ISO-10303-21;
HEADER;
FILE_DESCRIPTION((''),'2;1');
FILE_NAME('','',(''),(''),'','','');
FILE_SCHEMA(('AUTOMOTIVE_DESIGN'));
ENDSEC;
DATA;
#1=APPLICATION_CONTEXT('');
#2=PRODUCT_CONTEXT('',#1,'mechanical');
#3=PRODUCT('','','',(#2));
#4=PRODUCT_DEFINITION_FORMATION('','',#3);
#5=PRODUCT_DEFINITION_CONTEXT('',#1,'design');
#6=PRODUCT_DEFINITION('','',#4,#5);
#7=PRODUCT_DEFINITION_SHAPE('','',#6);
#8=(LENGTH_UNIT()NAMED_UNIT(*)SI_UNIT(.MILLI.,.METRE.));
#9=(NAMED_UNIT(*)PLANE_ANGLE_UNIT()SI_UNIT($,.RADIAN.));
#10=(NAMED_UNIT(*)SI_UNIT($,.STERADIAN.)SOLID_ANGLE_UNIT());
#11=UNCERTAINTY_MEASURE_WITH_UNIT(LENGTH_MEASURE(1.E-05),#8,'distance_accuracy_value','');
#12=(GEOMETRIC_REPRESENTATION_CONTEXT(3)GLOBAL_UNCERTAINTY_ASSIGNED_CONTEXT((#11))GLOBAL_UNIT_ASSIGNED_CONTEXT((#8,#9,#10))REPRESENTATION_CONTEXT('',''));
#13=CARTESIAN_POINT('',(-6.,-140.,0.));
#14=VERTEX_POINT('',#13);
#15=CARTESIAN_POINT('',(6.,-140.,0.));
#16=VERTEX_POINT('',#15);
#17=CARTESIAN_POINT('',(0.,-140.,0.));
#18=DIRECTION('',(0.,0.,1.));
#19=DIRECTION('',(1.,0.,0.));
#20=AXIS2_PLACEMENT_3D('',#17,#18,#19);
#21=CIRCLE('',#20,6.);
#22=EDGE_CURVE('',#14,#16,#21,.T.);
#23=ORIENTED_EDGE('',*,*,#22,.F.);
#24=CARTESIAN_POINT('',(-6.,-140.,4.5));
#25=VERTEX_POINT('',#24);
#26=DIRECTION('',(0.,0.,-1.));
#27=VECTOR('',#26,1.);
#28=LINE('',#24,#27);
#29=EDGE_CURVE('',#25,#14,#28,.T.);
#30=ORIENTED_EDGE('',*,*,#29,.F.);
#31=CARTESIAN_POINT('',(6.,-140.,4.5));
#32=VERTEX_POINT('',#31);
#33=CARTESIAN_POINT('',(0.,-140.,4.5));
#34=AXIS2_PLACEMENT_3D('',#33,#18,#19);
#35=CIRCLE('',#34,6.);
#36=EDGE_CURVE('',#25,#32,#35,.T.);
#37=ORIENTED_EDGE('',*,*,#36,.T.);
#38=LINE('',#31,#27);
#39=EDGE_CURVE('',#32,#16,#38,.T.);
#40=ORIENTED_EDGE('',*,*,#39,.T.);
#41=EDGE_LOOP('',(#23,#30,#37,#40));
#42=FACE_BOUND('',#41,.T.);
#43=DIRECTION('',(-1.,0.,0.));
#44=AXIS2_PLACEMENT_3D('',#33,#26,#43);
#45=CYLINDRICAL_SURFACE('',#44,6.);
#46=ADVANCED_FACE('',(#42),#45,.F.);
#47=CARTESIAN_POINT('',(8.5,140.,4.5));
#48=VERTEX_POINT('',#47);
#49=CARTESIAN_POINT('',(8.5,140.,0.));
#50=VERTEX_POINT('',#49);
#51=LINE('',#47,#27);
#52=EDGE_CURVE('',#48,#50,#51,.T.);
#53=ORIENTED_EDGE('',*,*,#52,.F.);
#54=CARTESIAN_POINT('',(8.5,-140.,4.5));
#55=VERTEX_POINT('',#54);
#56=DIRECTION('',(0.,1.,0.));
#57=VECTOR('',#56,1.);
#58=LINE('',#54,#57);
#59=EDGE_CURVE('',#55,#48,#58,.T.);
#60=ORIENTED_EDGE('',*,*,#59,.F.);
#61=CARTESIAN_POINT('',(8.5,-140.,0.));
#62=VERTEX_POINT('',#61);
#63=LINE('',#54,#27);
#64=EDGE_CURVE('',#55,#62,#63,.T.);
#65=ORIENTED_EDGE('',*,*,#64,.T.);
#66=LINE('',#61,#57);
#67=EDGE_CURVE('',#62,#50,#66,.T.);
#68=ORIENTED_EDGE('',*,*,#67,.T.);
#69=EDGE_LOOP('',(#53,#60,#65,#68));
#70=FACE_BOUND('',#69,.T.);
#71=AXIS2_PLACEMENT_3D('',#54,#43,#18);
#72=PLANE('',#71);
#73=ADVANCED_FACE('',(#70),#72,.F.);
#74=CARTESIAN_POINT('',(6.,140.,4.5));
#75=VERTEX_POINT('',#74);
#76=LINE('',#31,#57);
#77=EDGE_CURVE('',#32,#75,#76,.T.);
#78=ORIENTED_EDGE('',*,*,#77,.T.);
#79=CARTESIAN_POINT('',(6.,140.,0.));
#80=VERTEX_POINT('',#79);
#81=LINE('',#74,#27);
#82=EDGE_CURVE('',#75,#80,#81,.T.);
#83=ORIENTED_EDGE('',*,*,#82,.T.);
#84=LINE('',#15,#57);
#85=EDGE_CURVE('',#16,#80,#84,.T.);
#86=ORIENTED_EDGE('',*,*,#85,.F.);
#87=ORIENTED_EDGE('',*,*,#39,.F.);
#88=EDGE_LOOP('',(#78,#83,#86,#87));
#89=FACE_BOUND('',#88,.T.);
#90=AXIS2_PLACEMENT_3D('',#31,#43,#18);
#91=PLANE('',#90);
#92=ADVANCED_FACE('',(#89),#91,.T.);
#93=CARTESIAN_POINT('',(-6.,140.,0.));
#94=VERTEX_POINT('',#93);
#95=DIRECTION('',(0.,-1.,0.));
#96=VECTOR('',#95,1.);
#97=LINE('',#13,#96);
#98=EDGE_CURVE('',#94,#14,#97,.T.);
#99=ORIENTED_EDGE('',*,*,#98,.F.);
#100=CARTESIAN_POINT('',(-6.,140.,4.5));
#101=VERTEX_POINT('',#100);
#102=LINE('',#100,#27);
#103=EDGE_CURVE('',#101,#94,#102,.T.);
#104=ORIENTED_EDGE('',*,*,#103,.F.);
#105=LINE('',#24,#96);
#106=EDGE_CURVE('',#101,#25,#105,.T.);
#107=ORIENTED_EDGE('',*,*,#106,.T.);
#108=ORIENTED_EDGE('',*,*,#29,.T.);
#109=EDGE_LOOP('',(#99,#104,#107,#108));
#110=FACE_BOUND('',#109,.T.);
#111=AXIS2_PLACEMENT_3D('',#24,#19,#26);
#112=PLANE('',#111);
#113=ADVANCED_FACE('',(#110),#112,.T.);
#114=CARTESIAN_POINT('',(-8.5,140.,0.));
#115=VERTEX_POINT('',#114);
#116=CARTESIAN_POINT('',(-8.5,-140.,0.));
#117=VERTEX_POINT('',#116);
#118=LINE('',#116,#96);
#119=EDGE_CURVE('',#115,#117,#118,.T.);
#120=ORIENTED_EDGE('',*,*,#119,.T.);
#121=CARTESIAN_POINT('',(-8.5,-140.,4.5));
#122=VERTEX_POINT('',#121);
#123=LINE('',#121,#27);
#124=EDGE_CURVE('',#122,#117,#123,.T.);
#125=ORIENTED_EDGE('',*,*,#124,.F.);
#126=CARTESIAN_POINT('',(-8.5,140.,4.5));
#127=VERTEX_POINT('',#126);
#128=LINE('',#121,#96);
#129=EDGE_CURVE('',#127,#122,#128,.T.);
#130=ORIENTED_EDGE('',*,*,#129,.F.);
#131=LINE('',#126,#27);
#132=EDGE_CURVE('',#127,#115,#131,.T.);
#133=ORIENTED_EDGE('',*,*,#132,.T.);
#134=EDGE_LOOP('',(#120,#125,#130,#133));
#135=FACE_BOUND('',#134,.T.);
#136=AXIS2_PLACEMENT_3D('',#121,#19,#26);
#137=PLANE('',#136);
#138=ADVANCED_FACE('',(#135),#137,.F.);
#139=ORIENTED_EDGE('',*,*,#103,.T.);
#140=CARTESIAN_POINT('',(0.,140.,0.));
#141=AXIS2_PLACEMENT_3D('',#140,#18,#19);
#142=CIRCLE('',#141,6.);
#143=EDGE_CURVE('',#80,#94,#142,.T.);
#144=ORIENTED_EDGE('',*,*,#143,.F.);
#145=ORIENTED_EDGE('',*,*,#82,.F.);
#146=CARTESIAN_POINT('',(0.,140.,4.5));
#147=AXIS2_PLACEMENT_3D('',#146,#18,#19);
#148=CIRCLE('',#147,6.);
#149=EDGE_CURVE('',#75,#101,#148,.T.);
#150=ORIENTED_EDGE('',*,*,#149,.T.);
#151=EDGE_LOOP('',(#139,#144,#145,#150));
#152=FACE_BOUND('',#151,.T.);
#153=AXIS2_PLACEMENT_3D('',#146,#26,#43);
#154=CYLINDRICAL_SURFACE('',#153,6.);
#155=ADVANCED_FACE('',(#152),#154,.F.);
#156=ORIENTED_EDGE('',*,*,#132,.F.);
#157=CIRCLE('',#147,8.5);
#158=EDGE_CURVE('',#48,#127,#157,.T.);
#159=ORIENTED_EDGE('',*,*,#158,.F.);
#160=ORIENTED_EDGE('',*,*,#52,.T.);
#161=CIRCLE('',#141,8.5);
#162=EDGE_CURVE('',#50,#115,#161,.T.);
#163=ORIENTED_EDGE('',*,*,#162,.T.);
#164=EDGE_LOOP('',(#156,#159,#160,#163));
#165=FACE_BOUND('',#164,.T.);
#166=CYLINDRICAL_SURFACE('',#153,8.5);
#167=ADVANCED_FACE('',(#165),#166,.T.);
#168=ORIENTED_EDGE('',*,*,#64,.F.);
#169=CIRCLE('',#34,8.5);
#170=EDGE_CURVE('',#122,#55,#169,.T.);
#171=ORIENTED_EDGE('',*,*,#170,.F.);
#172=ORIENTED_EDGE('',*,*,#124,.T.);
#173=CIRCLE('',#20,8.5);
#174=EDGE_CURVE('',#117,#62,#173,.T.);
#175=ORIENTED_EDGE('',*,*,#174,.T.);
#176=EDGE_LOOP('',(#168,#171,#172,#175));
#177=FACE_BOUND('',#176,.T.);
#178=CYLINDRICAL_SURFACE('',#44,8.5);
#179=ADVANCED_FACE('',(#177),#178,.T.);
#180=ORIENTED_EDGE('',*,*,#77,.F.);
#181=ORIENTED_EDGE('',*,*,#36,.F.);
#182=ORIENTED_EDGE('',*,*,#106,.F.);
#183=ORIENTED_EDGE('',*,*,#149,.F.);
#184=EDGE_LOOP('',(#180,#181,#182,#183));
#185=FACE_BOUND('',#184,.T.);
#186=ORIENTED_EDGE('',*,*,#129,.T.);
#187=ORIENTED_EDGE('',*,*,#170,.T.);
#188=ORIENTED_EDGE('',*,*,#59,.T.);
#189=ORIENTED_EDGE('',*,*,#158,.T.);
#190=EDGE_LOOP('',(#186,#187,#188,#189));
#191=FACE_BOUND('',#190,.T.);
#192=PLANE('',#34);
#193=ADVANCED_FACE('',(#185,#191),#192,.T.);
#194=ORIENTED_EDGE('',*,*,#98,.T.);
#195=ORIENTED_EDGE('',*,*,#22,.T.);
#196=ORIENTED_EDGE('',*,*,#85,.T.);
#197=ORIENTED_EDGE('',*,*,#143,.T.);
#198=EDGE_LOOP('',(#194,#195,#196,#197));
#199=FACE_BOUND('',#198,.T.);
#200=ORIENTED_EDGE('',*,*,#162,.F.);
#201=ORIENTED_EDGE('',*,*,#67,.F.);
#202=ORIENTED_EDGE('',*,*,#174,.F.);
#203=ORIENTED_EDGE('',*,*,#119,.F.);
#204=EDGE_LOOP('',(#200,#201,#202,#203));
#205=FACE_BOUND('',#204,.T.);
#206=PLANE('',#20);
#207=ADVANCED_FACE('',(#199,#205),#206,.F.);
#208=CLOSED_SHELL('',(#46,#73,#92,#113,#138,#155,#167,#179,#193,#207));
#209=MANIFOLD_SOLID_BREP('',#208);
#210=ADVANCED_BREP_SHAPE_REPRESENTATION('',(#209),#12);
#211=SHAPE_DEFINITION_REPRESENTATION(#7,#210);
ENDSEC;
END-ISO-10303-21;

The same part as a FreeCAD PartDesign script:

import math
import FreeCAD as App
import Part
import Sketcher
from FreeCAD import Vector

doc = App.newDocument("Part")
body = doc.addObject("PartDesign::Body", "Body")

sketch1 = body.newObject("Sketcher::SketchObject", "Sketch")
sketch1.AttachmentSupport = (doc.getObject("XY_Plane"), [""])
sketch1.MapMode = "FlatFace"
sketch1.addGeometry([
    Part.LineSegment(Vector(-8, 140, 0), Vector(-8, -140, 0)),
    Part.ArcOfCircle(Part.Circle(Vector(0, -140, 0), Vector(0, 0, 1), 8), math.radians(180), math.radians(360)),
    Part.LineSegment(Vector(8, -140, 0), Vector(8, 140, 0)),
    Part.ArcOfCircle(Part.Circle(Vector(0, 140, 0), Vector(0, 0, 1), 8), math.radians(0), math.radians(180)),
    Part.LineSegment(Vector(-6, -140, 0), Vector(-6, 140, 0)),
    Part.ArcOfCircle(Part.Circle(Vector(0, 140, 0), Vector(0, 0, 1), 6), math.radians(0), math.radians(180)),
    Part.LineSegment(Vector(6, 140, 0), Vector(6, -140, 0)),
    Part.ArcOfCircle(Part.Circle(Vector(0, -140, 0), Vector(0, 0, 1), 6), math.radians(180), math.radians(360)),
], False)
sketch1.addConstraint([
    Sketcher.Constraint("Tangent", 0, 2, 1, 1),
    Sketcher.Constraint("Tangent", 1, 2, 2, 1),
    Sketcher.Constraint("Tangent", 2, 2, 3, 1),
    Sketcher.Constraint("Tangent", 3, 2, 0, 1),
    Sketcher.Constraint("Tangent", 4, 2, 5, 2),
    Sketcher.Constraint("Tangent", 5, 1, 6, 1),
    Sketcher.Constraint("Tangent", 6, 2, 7, 2),
    Sketcher.Constraint("Tangent", 7, 1, 4, 1),
    Sketcher.Constraint("Vertical", 0),
    Sketcher.Constraint("Vertical", 2),
    Sketcher.Constraint("Vertical", 4),
    Sketcher.Constraint("Vertical", 6),
    Sketcher.Constraint("Coincident", 5, 3, 3, 3),
    Sketcher.Constraint("Symmetric", 1, 3, 3, 3, -1, 1),
    Sketcher.Constraint("Horizontal", 7, 3, 0, 2),
    Sketcher.Constraint("Radius", 5, 6.0),
    Sketcher.Constraint("Radius", 1, 8.5),
    Sketcher.Constraint("DistanceY", 0, 2, 0, 1, 280.0),
])
pad1 = body.newObject("PartDesign::Pad", "Pad")
pad1.Profile = sketch1
pad1.Length = 4.5

doc.recompute()
